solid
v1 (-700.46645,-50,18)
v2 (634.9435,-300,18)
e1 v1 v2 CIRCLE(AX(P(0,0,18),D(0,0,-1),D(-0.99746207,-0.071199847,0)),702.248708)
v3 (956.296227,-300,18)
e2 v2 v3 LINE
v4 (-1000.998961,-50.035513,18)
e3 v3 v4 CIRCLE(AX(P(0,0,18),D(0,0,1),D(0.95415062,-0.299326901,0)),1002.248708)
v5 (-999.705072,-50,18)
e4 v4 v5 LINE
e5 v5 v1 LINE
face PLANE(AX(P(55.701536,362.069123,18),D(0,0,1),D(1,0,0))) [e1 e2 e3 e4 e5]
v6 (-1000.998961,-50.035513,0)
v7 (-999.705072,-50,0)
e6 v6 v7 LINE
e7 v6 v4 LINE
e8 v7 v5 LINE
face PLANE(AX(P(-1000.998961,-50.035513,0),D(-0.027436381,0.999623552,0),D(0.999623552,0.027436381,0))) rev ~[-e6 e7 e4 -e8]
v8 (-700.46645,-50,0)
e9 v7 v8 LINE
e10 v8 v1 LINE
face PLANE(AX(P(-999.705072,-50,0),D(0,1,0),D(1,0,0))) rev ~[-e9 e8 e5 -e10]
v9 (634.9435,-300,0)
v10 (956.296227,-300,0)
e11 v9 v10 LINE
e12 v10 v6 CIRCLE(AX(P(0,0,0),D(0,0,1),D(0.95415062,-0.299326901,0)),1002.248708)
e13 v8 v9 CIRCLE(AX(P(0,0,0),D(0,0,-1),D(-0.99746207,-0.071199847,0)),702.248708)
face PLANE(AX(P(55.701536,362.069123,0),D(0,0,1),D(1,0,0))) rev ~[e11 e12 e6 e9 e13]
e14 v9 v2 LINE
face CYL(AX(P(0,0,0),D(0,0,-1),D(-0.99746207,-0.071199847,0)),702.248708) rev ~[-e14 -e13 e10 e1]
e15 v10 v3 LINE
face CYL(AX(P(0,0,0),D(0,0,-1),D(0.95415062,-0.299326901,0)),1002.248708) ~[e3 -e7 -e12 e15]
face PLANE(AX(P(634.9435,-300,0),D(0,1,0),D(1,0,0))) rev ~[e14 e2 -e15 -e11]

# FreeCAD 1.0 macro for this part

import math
import FreeCAD as App
import Part
import Sketcher

V = App.Vector
Q = App.Units.Quantity

doc = App.newDocument("Part")
body = doc.addObject("PartDesign::Body", "Body")

# Sketch on XY plane
sketch1 = body.newObject("Sketcher::SketchObject", "Sketch")
sketch1.AttachmentSupport = (doc.getObject("XY_Plane"), [""])
sketch1.MapMode = "FlatFace"
sketch1.addGeometry([
    Part.ArcOfCircle(Part.Circle(V(0, 0, 0), V(0, 0, 1), 702.248708), math.radians(-25.289937), math.radians(184.082905)),  # 0
    Part.LineSegment(V(634.9435, -300, 0), V(956.296227, -300, 0)),  # 1
    Part.ArcOfCircle(Part.Circle(V(0, 0, 0), V(0, 0, 1), 1002.248708), math.radians(-17.41718), math.radians(182.861581)),  # 2
    Part.LineSegment(V(-1000.998961, -50.035513, 0), V(-999.705072, -50, 0)),  # 3
    Part.LineSegment(V(-999.705072, -50, 0), V(-700.46645, -50, 0)),  # 4
], False)
sketch1.addConstraint([
    Sketcher.Constraint("Coincident", 0, 1, 1, 1),
    Sketcher.Constraint("Coincident", 1, 2, 2, 1),
    Sketcher.Constraint("Coincident", 2, 2, 3, 1),
    Sketcher.Constraint("Coincident", 3, 2, 4, 1),
    Sketcher.Constraint("Coincident", 4, 2, 0, 2),
    Sketcher.Constraint("Horizontal", 1),
    Sketcher.Constraint("Horizontal", 4),
    Sketcher.Constraint("Coincident", 0, 3, -1, 1),
    Sketcher.Constraint("Coincident", 2, 3, -1, 1),
    Sketcher.Constraint("DistanceY", 1, 2, -1, 1, Q("300 mm")),
    Sketcher.Constraint("DistanceY", 3, 2, -1, 1, Q("50 mm")),
    Sketcher.Constraint("Radius", 0, Q("702.248708 mm")),
    Sketcher.Constraint("Radius", 2, Q("1002.248708 mm")),
    Sketcher.Constraint("DistanceX", 4, 1, 4, 2, Q("299.238622 mm")),
    Sketcher.Constraint("Distance", 3, Q("1.294376 mm")),
])
pad1 = body.newObject("PartDesign::Pad", "Pad")
pad1.Profile = sketch1
pad1.Length = 18

doc.recompute()
